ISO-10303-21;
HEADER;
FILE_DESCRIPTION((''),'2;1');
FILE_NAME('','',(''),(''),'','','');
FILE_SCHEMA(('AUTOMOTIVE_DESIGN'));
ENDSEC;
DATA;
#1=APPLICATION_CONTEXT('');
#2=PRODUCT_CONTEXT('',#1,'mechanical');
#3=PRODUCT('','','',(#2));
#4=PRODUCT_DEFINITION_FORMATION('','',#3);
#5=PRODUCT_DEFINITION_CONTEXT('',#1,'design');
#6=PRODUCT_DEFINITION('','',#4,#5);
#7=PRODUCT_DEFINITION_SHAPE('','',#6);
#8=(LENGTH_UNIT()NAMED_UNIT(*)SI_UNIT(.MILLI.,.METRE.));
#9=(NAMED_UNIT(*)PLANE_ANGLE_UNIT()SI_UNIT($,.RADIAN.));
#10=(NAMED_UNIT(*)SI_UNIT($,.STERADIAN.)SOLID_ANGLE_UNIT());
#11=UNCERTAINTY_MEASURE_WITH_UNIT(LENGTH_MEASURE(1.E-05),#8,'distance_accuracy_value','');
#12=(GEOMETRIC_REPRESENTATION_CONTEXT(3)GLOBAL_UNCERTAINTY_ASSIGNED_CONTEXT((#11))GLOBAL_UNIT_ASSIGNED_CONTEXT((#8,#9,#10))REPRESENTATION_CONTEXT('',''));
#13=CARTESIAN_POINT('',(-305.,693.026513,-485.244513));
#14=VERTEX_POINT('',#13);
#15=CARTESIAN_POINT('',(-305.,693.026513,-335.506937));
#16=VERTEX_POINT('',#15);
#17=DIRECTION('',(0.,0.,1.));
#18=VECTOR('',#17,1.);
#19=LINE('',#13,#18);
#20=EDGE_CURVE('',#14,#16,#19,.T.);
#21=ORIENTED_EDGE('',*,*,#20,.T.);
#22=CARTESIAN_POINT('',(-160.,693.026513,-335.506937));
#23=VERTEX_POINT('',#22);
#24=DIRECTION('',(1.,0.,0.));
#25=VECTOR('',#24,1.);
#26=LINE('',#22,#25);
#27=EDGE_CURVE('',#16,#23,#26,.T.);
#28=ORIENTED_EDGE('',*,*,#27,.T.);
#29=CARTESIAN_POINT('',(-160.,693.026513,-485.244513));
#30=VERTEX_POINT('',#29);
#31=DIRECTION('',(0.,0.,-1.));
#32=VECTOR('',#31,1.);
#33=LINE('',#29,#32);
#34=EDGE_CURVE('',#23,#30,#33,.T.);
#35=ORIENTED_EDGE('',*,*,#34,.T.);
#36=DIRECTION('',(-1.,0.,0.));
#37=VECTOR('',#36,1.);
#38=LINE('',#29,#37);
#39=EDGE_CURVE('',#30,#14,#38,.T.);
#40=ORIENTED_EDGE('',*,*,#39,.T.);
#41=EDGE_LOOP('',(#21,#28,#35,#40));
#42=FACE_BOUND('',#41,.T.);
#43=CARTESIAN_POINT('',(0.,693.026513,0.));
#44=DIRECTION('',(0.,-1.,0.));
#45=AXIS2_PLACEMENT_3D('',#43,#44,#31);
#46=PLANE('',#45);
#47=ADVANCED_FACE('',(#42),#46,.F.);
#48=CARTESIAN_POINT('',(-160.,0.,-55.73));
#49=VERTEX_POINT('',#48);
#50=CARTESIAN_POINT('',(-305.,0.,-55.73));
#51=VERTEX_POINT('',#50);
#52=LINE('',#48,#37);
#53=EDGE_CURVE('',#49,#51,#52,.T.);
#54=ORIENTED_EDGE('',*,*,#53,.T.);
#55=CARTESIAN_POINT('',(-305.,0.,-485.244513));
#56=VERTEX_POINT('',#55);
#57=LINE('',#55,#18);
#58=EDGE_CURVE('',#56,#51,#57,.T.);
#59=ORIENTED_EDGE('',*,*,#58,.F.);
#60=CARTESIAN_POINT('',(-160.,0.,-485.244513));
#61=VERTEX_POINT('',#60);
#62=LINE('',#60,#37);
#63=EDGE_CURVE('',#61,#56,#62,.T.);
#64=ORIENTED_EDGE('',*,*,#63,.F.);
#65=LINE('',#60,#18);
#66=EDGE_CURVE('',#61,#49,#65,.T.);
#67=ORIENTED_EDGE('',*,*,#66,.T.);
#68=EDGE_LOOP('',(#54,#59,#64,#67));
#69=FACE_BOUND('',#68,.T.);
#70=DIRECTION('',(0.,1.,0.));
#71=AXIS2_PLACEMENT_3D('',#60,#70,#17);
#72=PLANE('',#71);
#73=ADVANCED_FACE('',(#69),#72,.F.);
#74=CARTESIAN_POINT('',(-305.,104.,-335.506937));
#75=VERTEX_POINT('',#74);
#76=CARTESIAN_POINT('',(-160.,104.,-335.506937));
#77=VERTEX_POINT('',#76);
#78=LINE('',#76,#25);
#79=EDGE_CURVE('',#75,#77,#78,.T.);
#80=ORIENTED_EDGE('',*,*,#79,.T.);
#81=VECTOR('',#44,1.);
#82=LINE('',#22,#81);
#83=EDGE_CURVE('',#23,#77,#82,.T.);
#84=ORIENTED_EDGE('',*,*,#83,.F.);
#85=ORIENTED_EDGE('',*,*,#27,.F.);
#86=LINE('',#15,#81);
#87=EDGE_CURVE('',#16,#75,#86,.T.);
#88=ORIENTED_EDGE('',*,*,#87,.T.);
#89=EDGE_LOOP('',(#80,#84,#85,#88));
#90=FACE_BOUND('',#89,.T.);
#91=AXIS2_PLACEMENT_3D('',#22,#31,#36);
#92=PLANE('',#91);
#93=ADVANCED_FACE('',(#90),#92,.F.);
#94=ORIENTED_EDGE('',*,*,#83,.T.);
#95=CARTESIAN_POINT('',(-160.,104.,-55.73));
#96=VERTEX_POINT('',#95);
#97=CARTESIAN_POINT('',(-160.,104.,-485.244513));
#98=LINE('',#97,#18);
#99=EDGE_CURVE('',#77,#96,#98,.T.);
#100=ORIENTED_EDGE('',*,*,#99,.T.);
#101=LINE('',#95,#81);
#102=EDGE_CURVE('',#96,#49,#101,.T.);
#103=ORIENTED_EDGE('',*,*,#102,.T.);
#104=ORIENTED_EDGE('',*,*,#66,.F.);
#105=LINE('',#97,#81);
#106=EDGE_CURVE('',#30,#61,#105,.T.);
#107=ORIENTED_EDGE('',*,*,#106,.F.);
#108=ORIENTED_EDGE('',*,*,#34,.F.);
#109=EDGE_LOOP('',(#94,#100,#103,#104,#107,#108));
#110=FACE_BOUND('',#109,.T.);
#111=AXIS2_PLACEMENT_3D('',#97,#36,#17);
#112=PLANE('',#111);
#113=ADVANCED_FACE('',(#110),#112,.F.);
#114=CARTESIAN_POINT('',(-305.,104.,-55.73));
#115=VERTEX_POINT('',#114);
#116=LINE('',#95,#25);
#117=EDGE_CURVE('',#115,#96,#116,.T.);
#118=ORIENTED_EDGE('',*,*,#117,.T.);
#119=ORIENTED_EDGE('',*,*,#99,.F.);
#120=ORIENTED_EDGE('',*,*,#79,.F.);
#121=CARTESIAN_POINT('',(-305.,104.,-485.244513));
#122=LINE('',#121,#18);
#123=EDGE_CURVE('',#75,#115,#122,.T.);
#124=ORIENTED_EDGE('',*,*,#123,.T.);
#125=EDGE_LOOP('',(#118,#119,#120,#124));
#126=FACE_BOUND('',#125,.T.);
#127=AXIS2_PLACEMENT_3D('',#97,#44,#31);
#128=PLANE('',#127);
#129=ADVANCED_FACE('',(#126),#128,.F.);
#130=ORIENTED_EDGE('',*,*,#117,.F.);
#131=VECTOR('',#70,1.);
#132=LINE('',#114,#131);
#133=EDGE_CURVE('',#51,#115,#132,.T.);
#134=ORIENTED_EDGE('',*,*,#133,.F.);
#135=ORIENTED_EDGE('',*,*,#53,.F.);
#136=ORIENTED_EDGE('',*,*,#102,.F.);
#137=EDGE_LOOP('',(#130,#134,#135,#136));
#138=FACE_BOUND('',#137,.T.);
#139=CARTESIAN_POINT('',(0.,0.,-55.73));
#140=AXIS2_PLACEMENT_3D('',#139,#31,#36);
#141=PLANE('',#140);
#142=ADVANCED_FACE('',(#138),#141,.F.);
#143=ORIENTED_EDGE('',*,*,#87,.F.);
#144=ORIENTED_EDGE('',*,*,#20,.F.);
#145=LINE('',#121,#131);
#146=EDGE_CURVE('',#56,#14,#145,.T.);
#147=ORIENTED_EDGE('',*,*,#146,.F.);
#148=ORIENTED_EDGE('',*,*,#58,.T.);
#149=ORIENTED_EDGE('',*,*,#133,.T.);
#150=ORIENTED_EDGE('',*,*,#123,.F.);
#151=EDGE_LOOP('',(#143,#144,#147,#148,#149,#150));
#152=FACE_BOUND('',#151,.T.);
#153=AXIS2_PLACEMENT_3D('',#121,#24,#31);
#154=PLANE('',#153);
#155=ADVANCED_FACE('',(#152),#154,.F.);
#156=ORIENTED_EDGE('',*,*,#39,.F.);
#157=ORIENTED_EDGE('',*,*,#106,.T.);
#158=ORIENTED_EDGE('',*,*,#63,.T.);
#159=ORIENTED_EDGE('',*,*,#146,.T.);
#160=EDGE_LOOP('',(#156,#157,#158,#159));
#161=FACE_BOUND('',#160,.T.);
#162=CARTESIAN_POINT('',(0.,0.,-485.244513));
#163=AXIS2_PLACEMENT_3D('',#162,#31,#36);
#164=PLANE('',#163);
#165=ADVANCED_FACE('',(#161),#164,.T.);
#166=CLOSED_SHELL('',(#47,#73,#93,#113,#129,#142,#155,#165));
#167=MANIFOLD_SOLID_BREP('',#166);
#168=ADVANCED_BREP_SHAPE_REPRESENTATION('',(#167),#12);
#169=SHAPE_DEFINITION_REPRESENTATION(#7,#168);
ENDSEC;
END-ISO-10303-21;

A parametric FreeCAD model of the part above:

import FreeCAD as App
import Part
import Sketcher

doc = App.newDocument("Part")
body = doc.addObject("PartDesign::Body", "Body")

sketch1 = body.newObject("Sketcher::SketchObject", "Sketch")
sketch1.AttachmentSupport = (doc.getObject("XY_Plane"), [""])
sketch1.MapMode = "FlatFace"
sketch1.AttachmentOffset = App.Placement(App.Vector(0, 0, -55.73), App.Rotation())
sketch1.addGeometry(Part.LineSegment(App.Vector(-160, 104, 0), App.Vector(-160, 0, 0)), False)
sketch1.addGeometry(Part.LineSegment(App.Vector(-160, 0, 0), App.Vector(-305, 0, 0)), False)
sketch1.addGeometry(Part.LineSegment(App.Vector(-305, 0, 0), App.Vector(-305, 104, 0)), False)
sketch1.addGeometry(Part.LineSegment(App.Vector(-305, 104, 0), App.Vector(-160, 104, 0)), False)
sketch1.addConstraint(Sketcher.Constraint("Coincident", 0, 2, 1, 1))
sketch1.addConstraint(Sketcher.Constraint("Coincident", 1, 2, 2, 1))
sketch1.addConstraint(Sketcher.Constraint("Coincident", 2, 2, 3, 1))
sketch1.addConstraint(Sketcher.Constraint("Coincident", 3, 2, 0, 1))
sketch1.addConstraint(Sketcher.Constraint("Vertical", 0))
sketch1.addConstraint(Sketcher.Constraint("Horizontal", 1))
sketch1.addConstraint(Sketcher.Constraint("Vertical", 2))
sketch1.addConstraint(Sketcher.Constraint("Horizontal", 3))
sketch1.addConstraint(Sketcher.Constraint("PointOnObject", 0, 2, -1))
sketch1.addConstraint(Sketcher.Constraint("DistanceX", 1, 2, 1, 1, 145.0))
sketch1.addConstraint(Sketcher.Constraint("DistanceY", 0, 2, 0, 1, 104.0))
sketch1.addConstraint(Sketcher.Constraint("DistanceX", 0, 2, -1, 1, 160.0))
pad1 = body.newObject("PartDesign::Pad", "Pad")
pad1.Profile = sketch1
pad1.Length = 429.514513
pad1.Reversed = True

sketch2 = body.newObject("Sketcher::SketchObject", "Sketch001")
sketch2.AttachmentSupport = (doc.getObject("XZ_Plane"), [""])
sketch2.MapMode = "FlatFace"
sketch2.AttachmentOffset = App.Placement(App.Vector(0, 0, -104), App.Rotation())
sketch2.addGeometry(Part.LineSegment(App.Vector(-305, -485, 0), App.Vector(-305, -336, 0)), False)
sketch2.addGeometry(Part.LineSegment(App.Vector(-305, -336, 0), App.Vector(-160, -336, 0)), False)
sketch2.addGeometry(Part.LineSegment(App.Vector(-160, -336, 0), App.Vector(-160, -485, 0)), False)
sketch2.addGeometry(Part.LineSegment(App.Vector(-160, -485, 0), App.Vector(-305, -485, 0)), False)
sketch2.addConstraint(Sketcher.Constraint("Coincident", 0, 2, 1, 1))
sketch2.addConstraint(Sketcher.Constraint("Coincident", 1, 2, 2, 1))
sketch2.addConstraint(Sketcher.Constraint("Coincident", 2, 2, 3, 1))
sketch2.addConstraint(Sketcher.Constraint("Coincident", 3, 2, 0, 1))
sketch2.addConstraint(Sketcher.Constraint("Vertical", 0))
sketch2.addConstraint(Sketcher.Constraint("Horizontal", 1))
sketch2.addConstraint(Sketcher.Constraint("Vertical", 2))
sketch2.addConstraint(Sketcher.Constraint("Horizontal", 3))
sketch2.addConstraint(Sketcher.Constraint("DistanceX", 1, 1, 1, 2, 145.0))
sketch2.addConstraint(Sketcher.Constraint("DistanceX", 0, 2, -1, 1, 305.0))
sketch2.addConstraint(Sketcher.Constraint("DistanceY", 0, 1, 0, 2, 149.737576))
sketch2.addConstraint(Sketcher.Constraint("DistanceY", 0, 2, -1, 1, 335.506937))
pad2 = body.newObject("PartDesign::Pad", "Pad001")
pad2.Profile = sketch2
pad2.Length = 589.026513
pad2.Reversed = True

doc.recompute()
